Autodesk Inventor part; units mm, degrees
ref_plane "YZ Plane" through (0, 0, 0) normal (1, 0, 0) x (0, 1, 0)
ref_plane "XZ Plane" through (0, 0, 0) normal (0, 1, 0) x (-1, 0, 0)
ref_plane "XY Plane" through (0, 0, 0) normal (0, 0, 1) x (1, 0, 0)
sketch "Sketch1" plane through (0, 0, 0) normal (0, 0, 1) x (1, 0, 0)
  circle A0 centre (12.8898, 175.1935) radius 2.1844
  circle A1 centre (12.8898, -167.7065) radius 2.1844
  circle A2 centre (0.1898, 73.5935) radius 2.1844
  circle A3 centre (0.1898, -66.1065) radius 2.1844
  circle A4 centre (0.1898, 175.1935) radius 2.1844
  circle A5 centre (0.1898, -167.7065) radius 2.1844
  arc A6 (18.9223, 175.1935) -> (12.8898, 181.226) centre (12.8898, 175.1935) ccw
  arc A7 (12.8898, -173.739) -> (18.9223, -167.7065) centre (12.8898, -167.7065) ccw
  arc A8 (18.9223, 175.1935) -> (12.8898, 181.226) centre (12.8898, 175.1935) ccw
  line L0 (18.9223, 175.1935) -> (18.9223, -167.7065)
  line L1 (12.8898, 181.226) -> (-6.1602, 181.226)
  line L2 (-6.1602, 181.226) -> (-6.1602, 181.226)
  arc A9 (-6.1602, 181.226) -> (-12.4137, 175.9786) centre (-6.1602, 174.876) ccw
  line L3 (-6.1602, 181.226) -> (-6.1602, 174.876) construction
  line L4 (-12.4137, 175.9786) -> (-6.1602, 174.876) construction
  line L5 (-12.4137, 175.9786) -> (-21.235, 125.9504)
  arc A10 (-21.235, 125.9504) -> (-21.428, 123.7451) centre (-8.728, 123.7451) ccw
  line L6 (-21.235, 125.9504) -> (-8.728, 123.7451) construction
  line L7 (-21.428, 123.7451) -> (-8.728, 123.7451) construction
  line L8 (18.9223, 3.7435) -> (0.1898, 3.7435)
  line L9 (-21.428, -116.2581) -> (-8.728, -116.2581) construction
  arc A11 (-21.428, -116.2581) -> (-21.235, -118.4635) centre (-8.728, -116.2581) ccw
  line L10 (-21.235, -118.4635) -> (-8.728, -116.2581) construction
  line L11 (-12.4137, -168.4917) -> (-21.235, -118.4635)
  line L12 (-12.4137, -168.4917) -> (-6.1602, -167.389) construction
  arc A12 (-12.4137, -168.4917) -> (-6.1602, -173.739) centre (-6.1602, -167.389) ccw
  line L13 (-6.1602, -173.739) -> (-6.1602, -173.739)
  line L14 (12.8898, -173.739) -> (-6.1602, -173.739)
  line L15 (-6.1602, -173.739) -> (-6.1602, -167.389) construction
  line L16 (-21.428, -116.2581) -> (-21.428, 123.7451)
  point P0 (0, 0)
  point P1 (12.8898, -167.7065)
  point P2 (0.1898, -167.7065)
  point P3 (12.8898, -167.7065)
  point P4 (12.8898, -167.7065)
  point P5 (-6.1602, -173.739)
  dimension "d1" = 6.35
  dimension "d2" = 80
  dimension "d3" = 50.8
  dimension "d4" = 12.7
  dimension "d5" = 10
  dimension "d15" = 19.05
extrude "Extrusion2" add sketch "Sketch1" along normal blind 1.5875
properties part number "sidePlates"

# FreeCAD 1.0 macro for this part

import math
import FreeCAD as App
import Part
import Sketcher
Q = App.Units.Quantity

doc = App.newDocument("Part")
body = doc.addObject("PartDesign::Body", "Body")

# Sketch on XY plane
sketch1 = body.newObject("Sketcher::SketchObject", "Sketch")
sketch1.AttachmentSupport = (doc.getObject("XY_Plane"), [""])
sketch1.MapMode = "FlatFace"
sketch1.addGeometry([
    Part.LineSegment(App.Vector(18.9223, -167.7065, 0), App.Vector(18.9223, 175.1935, 0)),  # 0
    Part.ArcOfCircle(Part.Circle(App.Vector(12.8898, 175.1935, 0), App.Vector(0, 0, 1), 6.0325), math.radians(0), math.radians(90)),  # 1
    Part.LineSegment(App.Vector(12.8898, 181.226, 0), App.Vector(-6.1602, 181.226, 0)),  # 2
    Part.ArcOfCircle(Part.Circle(App.Vector(-6.1602, 174.876, 0), App.Vector(0, 0, 1), 6.35), math.radians(90), math.radians(170.00054)),  # 3
    Part.LineSegment(App.Vector(-12.4137, 175.9786, 0), App.Vector(-21.235, 125.9504, 0)),  # 4
    Part.ArcOfCircle(Part.Circle(App.Vector(-8.719766, 123.744016, 0), App.Vector(0, 0, 1), 12.708234), math.radians(170.001729), math.radians(179.995112)),  # 5
    Part.LineSegment(App.Vector(-21.428, 123.7451, 0), App.Vector(-21.428, -116.2581, 0)),  # 6
    Part.ArcOfCircle(Part.Circle(App.Vector(-8.734007, -116.258362, 0), App.Vector(0, 0, 1), 12.693993), math.radians(179.998816), math.radians(190.003891)),  # 7
    Part.LineSegment(App.Vector(-21.235, -118.4635, 0), App.Vector(-12.4137, -168.4917, 0)),  # 8
    Part.ArcOfCircle(Part.Circle(App.Vector(-6.1602, -167.389, 0), App.Vector(0, 0, 1), 6.349977), math.radians(-169.999651), math.radians(-90)),  # 9
    Part.LineSegment(App.Vector(-6.1602, -173.739, 0), App.Vector(12.8898, -173.739, 0)),  # 10
    Part.ArcOfCircle(Part.Circle(App.Vector(12.8898, -167.7065, 0), App.Vector(0, 0, 1), 6.0325), math.radians(-90), math.radians(0)),  # 11
    Part.Circle(App.Vector(0.1898, -167.7065, 0), App.Vector(0, 0, 1), 2.1844),  # 12
    Part.Circle(App.Vector(12.8898, -167.7065, 0), App.Vector(0, 0, 1), 2.1844),  # 13
    Part.Circle(App.Vector(0.1898, -66.1065, 0), App.Vector(0, 0, 1), 2.1844),  # 14
    Part.Circle(App.Vector(0.1898, 73.5935, 0), App.Vector(0, 0, 1), 2.1844),  # 15
    Part.Circle(App.Vector(0.1898, 175.1935, 0), App.Vector(0, 0, 1), 2.1844),  # 16
    Part.Circle(App.Vector(12.8898, 175.1935, 0), App.Vector(0, 0, 1), 2.1844),  # 17
], False)
sketch1.addConstraint([
    Sketcher.Constraint("Coincident", 0, 2, 1, 1),
    Sketcher.Constraint("Coincident", 1, 2, 2, 1),
    Sketcher.Constraint("Coincident", 2, 2, 3, 1),
    Sketcher.Constraint("Coincident", 3, 2, 4, 1),
    Sketcher.Constraint("Coincident", 4, 2, 5, 1),
    Sketcher.Constraint("Coincident", 5, 2, 6, 1),
    Sketcher.Constraint("Coincident", 6, 2, 7, 1),
    Sketcher.Constraint("Coincident", 7, 2, 8, 1),
    Sketcher.Constraint("Coincident", 8, 2, 9, 1),
    Sketcher.Constraint("Coincident", 9, 2, 10, 1),
    Sketcher.Constraint("Coincident", 10, 2, 11, 1),
    Sketcher.Constraint("Coincident", 11, 2, 0, 1),
    Sketcher.Constraint("Vertical", 0),
    Sketcher.Constraint("Horizontal", 2),
    Sketcher.Constraint("Vertical", 6),
    Sketcher.Constraint("Horizontal", 10),
    Sketcher.Constraint("Coincident", 13, 3, 11, 3),
    Sketcher.Constraint("Coincident", 17, 3, 1, 3),
    Sketcher.Constraint("Radius", 3, Q("0.25 in")),
    Sketcher.Constraint("Radius", 9, Q("0.25 in")),
    Sketcher.Constraint("Distance", 4, Q("2 in")),
    Sketcher.Constraint("Distance", 8, Q("2 in")),
    Sketcher.Constraint("DistanceX", 2, 2, 2, 1, Q("0.75 in")),
    Sketcher.Constraint("DistanceX", 10, 1, 10, 2, Q("0.75 in")),
    Sketcher.Constraint("DistanceX", 12, 3, 11, 3, Q("0.5 in")),
    Sketcher.Constraint("DistanceX", 14, 3, 11, 3, Q("0.5 in")),
    Sketcher.Constraint("DistanceX", 15, 3, 1, 3, Q("0.5 in")),
    Sketcher.Constraint("DistanceX", 16, 3, 1, 3, Q("0.5 in")),
    Sketcher.Constraint("DistanceX", 16, 3, 1, 2, Q("0.5 in")),
    Sketcher.Constraint("DistanceX", 12, 3, 10, 2, Q("0.5 in")),
    Sketcher.Constraint("DistanceX", 3, 3, 1, 3, Q("0.75 in")),
    Sketcher.Constraint("DistanceX", 9, 3, 1, 3, Q("0.75 in")),
    Sketcher.Constraint("DistanceX", 9, 3, 11, 3, Q("0.75 in")),
    Sketcher.Constraint("Diameter", 12, Q("0.172 in")),
    Sketcher.Constraint("Diameter", 13, Q("0.172 in")),
    Sketcher.Constraint("Diameter", 14, Q("0.172 in")),
    Sketcher.Constraint("Diameter", 15, Q("0.172 in")),
    Sketcher.Constraint("Diameter", 16, Q("0.172 in")),
    Sketcher.Constraint("Diameter", 17, Q("0.172 in")),
    Sketcher.Constraint("DistanceY", 0, 1, 0, 2, Q("13.5 in")),
    Sketcher.Constraint("DistanceY", 12, 3, 14, 3, Q("4 in")),
    Sketcher.Constraint("DistanceY", 11, 3, 14, 3, Q("4 in")),
    Sketcher.Constraint("DistanceY", 15, 3, 1, 3, Q("4 in")),
    Sketcher.Constraint("DistanceY", 15, 3, 16, 3, Q("4 in")),
    Sketcher.Constraint("DistanceY", 7, 3, 6, 2, Q("0 in")),
    Sketcher.Constraint("Radius", 1, Q("0.2375 in")),
    Sketcher.Constraint("DistanceY", 11, 3, 1, 3, Q("13.5 in")),
    Sketcher.Constraint("Radius", 5, 12.7082),
    Sketcher.Constraint("Radius", 7, 12.694),
    Sketcher.Constraint("DistanceY", 6, 2, 6, 1, 240.0032),
    Sketcher.Constraint("DistanceX", 5, 3, -1, 1, Q("0.3433 in")),
    Sketcher.Constraint("DistanceY", -1, 1, 5, 3, Q("4.8718 in")),
    Sketcher.Constraint("DistanceY", 7, 3, -1, 1, Q("4.5771 in")),
    Sketcher.Constraint("DistanceY", -1, 1, 3, 2, Q("6.9283 in")),
    Sketcher.Constraint("DistanceY", 3, 3, 0, 2, Q("0.0125 in")),
    Sketcher.Constraint("DistanceX", 3, 2, 3, 3, Q("0.2462 in")),
    Sketcher.Constraint("DistanceX", 4, 2, 3, 2, Q("0.3473 in")),
    Sketcher.Constraint("DistanceX", 6, 2, 7, 2, Q("0.0076 in")),
])
pad1 = body.newObject("PartDesign::Pad", "Pad")
pad1.Profile = sketch1
pad1.Length = Q("0.0625 in")

doc.recompute()
